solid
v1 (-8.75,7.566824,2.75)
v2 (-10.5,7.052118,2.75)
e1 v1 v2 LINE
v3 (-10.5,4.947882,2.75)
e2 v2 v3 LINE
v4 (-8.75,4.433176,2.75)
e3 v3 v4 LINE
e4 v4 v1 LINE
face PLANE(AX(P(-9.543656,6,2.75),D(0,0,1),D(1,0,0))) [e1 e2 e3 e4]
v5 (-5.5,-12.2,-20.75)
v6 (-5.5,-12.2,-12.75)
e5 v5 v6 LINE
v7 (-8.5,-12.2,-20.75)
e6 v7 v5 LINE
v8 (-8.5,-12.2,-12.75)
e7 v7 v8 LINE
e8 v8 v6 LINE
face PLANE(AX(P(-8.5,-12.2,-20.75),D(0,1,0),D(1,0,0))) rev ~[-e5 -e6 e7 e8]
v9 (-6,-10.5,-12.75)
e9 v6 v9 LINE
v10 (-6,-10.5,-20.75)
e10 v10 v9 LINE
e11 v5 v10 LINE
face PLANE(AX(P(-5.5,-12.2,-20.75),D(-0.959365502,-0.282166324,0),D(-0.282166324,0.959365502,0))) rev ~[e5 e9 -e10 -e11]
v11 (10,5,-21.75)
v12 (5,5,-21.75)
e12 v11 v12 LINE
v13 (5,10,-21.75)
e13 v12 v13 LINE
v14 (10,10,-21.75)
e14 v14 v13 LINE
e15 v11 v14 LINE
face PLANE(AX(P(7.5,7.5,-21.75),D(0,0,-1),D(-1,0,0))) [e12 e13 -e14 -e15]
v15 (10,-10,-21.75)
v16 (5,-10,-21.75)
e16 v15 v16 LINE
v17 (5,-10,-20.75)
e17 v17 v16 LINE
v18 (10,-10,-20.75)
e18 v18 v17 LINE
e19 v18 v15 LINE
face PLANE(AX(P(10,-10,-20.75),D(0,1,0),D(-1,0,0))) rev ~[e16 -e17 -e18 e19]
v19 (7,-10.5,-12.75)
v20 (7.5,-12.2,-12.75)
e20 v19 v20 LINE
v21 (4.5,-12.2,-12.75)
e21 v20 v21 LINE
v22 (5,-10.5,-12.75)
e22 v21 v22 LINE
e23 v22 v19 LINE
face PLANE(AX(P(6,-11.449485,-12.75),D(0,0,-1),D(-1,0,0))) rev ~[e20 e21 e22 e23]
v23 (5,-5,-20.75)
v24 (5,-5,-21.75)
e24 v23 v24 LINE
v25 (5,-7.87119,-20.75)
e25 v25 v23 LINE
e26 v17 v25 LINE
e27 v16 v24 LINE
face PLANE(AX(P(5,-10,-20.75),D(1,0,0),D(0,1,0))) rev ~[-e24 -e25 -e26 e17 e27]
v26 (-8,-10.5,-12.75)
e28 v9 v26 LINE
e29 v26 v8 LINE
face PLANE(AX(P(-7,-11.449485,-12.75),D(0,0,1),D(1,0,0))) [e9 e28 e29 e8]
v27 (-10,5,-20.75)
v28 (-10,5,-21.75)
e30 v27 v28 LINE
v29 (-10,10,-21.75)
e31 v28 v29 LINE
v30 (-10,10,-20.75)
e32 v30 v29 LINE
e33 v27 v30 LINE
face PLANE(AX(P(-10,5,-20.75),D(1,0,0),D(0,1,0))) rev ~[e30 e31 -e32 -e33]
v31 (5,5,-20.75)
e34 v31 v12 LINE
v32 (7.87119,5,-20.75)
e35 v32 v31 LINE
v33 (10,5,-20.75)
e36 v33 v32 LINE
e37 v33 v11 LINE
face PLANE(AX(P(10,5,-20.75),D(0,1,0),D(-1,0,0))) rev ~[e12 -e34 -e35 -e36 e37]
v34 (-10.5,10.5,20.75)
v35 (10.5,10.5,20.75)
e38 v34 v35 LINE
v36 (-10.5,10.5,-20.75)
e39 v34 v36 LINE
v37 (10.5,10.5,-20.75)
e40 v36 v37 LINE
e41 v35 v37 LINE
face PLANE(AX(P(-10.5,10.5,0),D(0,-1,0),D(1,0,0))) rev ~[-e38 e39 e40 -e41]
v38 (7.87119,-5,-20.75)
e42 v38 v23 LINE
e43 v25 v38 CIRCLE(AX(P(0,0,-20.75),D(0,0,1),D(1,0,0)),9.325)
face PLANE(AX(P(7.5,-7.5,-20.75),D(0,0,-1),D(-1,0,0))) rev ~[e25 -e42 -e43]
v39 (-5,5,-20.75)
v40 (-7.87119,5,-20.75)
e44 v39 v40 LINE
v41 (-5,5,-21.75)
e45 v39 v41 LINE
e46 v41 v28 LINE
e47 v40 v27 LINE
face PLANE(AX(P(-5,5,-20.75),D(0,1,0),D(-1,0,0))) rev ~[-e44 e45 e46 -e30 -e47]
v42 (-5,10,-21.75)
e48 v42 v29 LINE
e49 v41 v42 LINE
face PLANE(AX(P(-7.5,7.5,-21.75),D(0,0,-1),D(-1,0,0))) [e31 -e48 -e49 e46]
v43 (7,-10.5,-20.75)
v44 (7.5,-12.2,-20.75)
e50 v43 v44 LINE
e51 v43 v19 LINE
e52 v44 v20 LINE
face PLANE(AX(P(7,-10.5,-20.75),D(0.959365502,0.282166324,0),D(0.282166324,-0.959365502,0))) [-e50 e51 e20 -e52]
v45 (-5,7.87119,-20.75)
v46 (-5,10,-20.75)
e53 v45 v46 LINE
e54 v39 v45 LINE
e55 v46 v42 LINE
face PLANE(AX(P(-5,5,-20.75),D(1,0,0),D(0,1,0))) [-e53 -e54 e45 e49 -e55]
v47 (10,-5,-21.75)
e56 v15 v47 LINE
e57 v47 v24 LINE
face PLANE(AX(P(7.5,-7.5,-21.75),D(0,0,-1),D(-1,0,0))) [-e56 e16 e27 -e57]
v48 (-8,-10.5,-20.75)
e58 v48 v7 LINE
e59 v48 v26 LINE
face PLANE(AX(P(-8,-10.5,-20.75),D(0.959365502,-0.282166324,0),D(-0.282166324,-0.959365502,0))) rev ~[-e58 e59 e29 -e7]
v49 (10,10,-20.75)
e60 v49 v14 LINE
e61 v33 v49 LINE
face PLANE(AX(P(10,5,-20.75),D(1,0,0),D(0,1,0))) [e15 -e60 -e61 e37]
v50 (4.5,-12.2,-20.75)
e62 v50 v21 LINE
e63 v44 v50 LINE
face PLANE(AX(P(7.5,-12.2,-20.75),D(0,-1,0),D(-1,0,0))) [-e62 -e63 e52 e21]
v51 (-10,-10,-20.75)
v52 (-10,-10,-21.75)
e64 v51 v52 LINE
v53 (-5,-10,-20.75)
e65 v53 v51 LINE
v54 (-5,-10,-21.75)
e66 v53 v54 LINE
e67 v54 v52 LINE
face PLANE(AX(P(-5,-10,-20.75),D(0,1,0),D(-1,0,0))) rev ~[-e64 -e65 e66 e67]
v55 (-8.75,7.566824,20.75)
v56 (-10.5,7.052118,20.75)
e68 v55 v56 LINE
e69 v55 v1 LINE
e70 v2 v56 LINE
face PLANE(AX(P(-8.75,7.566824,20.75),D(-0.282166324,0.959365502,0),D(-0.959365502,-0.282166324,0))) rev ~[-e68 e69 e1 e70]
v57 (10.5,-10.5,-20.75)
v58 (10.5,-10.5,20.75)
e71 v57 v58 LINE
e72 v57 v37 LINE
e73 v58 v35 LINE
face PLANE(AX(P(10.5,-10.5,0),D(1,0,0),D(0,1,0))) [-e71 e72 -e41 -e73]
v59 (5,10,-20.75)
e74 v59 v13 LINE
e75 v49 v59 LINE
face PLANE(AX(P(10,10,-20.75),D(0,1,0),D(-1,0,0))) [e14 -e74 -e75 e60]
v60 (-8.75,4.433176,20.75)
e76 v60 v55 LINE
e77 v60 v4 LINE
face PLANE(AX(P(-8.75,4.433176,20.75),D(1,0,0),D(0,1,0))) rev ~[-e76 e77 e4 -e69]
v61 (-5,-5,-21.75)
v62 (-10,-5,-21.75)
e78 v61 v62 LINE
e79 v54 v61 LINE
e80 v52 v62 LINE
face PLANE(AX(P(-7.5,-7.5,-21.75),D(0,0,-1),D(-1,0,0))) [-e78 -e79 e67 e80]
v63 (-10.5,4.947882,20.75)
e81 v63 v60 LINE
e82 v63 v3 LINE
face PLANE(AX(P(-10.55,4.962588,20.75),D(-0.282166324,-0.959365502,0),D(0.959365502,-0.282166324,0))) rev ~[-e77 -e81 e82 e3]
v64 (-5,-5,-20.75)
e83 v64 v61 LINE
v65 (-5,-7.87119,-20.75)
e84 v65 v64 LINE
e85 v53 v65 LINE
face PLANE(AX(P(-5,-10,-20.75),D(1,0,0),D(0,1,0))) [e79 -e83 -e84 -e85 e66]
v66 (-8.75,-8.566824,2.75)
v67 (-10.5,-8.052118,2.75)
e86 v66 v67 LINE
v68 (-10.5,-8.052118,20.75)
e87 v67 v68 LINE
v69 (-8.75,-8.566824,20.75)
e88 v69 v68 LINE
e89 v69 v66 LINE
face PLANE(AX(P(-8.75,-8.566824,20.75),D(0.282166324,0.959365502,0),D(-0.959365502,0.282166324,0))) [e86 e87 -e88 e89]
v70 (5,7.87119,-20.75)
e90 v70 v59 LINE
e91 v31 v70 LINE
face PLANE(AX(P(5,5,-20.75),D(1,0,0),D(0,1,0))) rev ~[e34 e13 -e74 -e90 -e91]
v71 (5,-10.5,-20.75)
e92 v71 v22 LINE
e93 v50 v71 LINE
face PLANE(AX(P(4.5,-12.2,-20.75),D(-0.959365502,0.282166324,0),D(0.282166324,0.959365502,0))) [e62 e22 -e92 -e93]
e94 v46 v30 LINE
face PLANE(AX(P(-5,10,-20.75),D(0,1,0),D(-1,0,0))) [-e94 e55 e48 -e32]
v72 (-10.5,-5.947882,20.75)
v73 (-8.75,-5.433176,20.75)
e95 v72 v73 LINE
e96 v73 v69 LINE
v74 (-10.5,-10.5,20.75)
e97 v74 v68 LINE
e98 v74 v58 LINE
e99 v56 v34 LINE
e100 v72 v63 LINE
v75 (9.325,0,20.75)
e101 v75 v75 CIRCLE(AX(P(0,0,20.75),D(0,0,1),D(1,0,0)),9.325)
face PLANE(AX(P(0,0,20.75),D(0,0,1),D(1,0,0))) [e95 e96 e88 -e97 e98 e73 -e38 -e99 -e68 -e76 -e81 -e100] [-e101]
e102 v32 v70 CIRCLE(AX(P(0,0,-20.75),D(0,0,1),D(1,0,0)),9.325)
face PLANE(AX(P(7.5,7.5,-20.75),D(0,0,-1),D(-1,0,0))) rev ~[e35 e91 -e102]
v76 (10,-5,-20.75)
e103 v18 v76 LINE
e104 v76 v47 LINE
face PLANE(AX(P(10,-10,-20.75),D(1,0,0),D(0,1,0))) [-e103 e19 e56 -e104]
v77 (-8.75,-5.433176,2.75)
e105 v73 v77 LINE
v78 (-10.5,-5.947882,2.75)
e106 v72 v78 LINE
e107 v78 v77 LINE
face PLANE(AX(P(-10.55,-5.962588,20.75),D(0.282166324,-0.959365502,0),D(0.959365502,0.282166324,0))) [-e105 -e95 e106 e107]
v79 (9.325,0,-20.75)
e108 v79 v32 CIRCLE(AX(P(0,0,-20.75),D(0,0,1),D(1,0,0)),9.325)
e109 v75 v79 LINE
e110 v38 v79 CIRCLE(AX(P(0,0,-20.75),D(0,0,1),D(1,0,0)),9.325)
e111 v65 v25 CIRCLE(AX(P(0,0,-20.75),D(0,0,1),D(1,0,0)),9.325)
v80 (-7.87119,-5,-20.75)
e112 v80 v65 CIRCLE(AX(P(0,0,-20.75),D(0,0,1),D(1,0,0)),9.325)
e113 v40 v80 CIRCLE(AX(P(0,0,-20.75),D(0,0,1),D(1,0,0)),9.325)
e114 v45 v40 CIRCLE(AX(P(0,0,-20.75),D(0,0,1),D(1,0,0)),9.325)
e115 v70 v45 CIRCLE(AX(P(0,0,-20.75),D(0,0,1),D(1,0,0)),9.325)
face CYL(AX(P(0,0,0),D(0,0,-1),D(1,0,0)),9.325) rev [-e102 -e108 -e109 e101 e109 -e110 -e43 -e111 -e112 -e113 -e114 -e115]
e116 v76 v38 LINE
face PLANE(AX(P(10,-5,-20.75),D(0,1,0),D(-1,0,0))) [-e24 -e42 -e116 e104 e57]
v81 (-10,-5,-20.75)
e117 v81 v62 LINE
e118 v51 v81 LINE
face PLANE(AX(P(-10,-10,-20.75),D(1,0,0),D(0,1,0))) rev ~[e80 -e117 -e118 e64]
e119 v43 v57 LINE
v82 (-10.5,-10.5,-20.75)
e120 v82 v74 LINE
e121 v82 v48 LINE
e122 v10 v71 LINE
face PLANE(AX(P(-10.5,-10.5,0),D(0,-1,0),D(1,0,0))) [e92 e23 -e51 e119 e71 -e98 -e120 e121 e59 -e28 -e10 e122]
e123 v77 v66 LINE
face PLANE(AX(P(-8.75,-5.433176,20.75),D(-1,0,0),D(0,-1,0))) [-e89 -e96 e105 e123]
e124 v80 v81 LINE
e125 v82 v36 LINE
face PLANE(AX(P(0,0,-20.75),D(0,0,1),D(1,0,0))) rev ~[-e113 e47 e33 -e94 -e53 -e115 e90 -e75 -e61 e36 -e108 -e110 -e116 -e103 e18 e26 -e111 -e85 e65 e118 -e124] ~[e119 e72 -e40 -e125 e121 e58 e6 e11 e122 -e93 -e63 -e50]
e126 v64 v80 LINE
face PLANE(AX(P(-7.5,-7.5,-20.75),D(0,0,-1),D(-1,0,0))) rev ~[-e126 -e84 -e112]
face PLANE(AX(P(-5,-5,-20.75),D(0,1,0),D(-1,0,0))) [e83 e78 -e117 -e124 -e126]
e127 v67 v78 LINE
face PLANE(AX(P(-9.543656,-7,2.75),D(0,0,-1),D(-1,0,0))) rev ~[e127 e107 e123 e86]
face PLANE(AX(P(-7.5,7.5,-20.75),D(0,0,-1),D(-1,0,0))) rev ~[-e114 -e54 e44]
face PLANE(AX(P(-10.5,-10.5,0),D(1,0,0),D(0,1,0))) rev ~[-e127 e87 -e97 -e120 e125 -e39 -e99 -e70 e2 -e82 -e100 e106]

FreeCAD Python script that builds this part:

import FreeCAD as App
import Part
import Sketcher

V = App.Vector
Q = App.Units.Quantity


def add_polygon(sketch, points):
    """Adds a closed chain of lines whose ends are joined by coincident constraints."""
    first, n = sketch.GeometryCount, len(points)
    for a, b in zip(points, points[1:] + points[:1]):
        sketch.addGeometry(Part.LineSegment(App.Vector(*a, 0), App.Vector(*b, 0)), False)
    for i in range(n):
        sketch.addConstraint(Sketcher.Constraint("Coincident", first + i, 2, first + (i + 1) % n, 1))

doc = App.newDocument("Part")
body = doc.addObject("PartDesign::Body", "Body")

sketch1 = doc.addObject("Sketcher::SketchObject", "Sketch")
body.addObject(sketch1)
sketch1.AttachmentSupport = (doc.XY_Plane, [""])
sketch1.MapMode = "FlatFace"
add_polygon(sketch1, [(-10, 10), (-10, -10), (10, -10), (10, 10)])
sketch1.addGeometry(Part.Circle(V(0, 0, 0), V(0, 0, 1), 9), False)
sketch1.addConstraint([
    Sketcher.Constraint("Vertical", 0),
    Sketcher.Constraint("Horizontal", 1),
    Sketcher.Constraint("Vertical", 2),
    Sketcher.Constraint("Horizontal", 3),
    Sketcher.Constraint("Coincident", 4, 3, -1, 1),
    Sketcher.Constraint("Symmetric", 0, 2, 2, 2, -1, 1),
    Sketcher.Constraint("Equal", 3, 0),
    Sketcher.Constraint("Diameter", 4, Q("18.65 mm")),
    Sketcher.Constraint("DistanceX", 1, 1, 1, 2, Q("21 mm")),
])
pad1 = doc.addObject("PartDesign::Pad", "Pad")
body.addObject(pad1)
pad1.Profile = sketch1
pad1.Length = 41.5
pad1.Midplane = True

sketch2 = doc.addObject("Sketcher::SketchObject", "Sketch001")
body.addObject(sketch2)
sketch2.AttachmentSupport = (doc.XY_Plane, [""])
sketch2.MapMode = "FlatFace"
sketch2.AttachmentOffset = App.Placement(V(0, 0, -20.75), App.Rotation())
add_polygon(sketch2, [(10, 10), (10, 5), (5, 5), (5, 10)])
add_polygon(sketch2, [(-5, 10), (-5, 5), (-10, 5), (-10, 10)])
add_polygon(sketch2, [(-5, -5), (-5, -10), (-10, -10), (-10, -5)])
add_polygon(sketch2, [(10, -5), (10, -10), (5, -10), (5, -5)])
sketch2.addConstraint([
    Sketcher.Constraint("Vertical", 0),
    Sketcher.Constraint("Horizontal", 1),
    Sketcher.Constraint("Vertical", 2),
    Sketcher.Constraint("Horizontal", 3),
    Sketcher.Constraint("Vertical", 4),
    Sketcher.Constraint("Horizontal", 5),
    Sketcher.Constraint("Vertical", 6),
    Sketcher.Constraint("Horizontal", 7),
    Sketcher.Constraint("Vertical", 8),
    Sketcher.Constraint("Horizontal", 9),
    Sketcher.Constraint("Vertical", 10),
    Sketcher.Constraint("Horizontal", 11),
    Sketcher.Constraint("Vertical", 12),
    Sketcher.Constraint("Horizontal", 13),
    Sketcher.Constraint("Vertical", 14),
    Sketcher.Constraint("Horizontal", 15),
    Sketcher.Constraint("Symmetric", 2, 2, 8, 2, -1, 1),
    Sketcher.Constraint("Symmetric", 0, 2, 10, 2, -1, 1),
    Sketcher.Constraint("Symmetric", 6, 2, 12, 2, -1, 1),
    Sketcher.Constraint("Symmetric", 4, 2, 14, 2, -1, 1),
    Sketcher.Constraint("Symmetric", 1, 2, 4, 2, -2),
    Sketcher.Constraint("Symmetric", 3, 2, 6, 2, -2),
    Sketcher.Constraint("Equal", 15, 0),
    Sketcher.Constraint("DistanceX", 1, 2, 1, 1, Q("5 mm")),
    Sketcher.Constraint("DistanceX", -1, 1, 0, 2, Q("10 mm")),
    Sketcher.Constraint("DistanceY", -1, 1, 0, 2, Q("5 mm")),
])
pad2 = doc.addObject("PartDesign::Pad", "Pad001")
body.addObject(pad2)
pad2.Profile = sketch2
pad2.Length = 1
pad2.Reversed = True

sketch3 = doc.addObject("Sketcher::SketchObject", "Sketch002")
body.addObject(sketch3)
sketch3.AttachmentSupport = (doc.XY_Plane, [""])
sketch3.MapMode = "FlatFace"
sketch3.AttachmentOffset = App.Placement(V(0, 0, 20.75), App.Rotation())
add_polygon(sketch3, [(-8.8, -5.4), (-10.6, -6), (-10.6, -8), (-8.8, -8.6)])
add_polygon(sketch3, [(-10.6, 7), (-10.6, 5), (-8.8, 4.4), (-8.8, 7.6)])
sketch3.addConstraint([
    Sketcher.Constraint("Vertical", 1),
    Sketcher.Constraint("Vertical", 3),
    Sketcher.Constraint("Vertical", 4),
    Sketcher.Constraint("Vertical", 6),
    Sketcher.Constraint("Parallel", 2, 5),
    Sketcher.Constraint("Parallel", 0, 7),
    Sketcher.Constraint("Vertical", 1, 2, 4, 2),
    Sketcher.Constraint("Vertical", 3, 2, 5, 2),
    Sketcher.Constraint("Equal", 1, 4),
    Sketcher.Constraint("Equal", 0, 2),
    Sketcher.Constraint("DistanceY", 1, 2, 4, 2, Q("13 mm")),
    Sketcher.Constraint("DistanceX", 1, 2, 2, 2, Q("1.8 mm")),
    Sketcher.Constraint("DistanceX", 0, 2, -1, 1, Q("10.55 mm")),
    Sketcher.Constraint("Distance", 0, Q("1.87624 mm")),
    Sketcher.Constraint("DistanceY", 1, 2, 1, 1, Q("2.074824 mm")),
    Sketcher.Constraint("DistanceY", 0, 2, -1, 1, Q("5.962588 mm")),
])
pocket1 = doc.addObject("PartDesign::Pocket", "Pocket")
body.addObject(pocket1)
pocket1.Profile = sketch3
pocket1.Length = 18

sketch4 = doc.addObject("Sketcher::SketchObject", "Sketch003")
body.addObject(sketch4)
sketch4.AttachmentSupport = (doc.XY_Plane, [""])
sketch4.MapMode = "FlatFace"
sketch4.AttachmentOffset = App.Placement(V(0, 0, -20.75), App.Rotation())
add_polygon(sketch4, [(-8, -10.5), (-6, -10.5), (-5.5, -12.2), (-8.5, -12.2)])
add_polygon(sketch4, [(4.5, -12.2), (5, -10.5), (7, -10.5), (7.5, -12.2)])
sketch4.addConstraint([
    Sketcher.Constraint("Horizontal", 0),
    Sketcher.Constraint("Horizontal", 2),
    Sketcher.Constraint("Horizontal", 5),
    Sketcher.Constraint("Horizontal", 7),
    Sketcher.Constraint("Parallel", 3, 4),
    Sketcher.Constraint("Parallel", 1, 6),
    Sketcher.Constraint("Horizontal", 3, 2, 4, 2),
    Sketcher.Constraint("Horizontal", 2, 2, 6, 2),
    Sketcher.Constraint("Equal", 0, 5),
    Sketcher.Constraint("Equal", 1, 3),
    Sketcher.Constraint("DistanceX", 0, 1, 0, 2, Q("2 mm")),
    Sketcher.Constraint("DistanceX", 2, 2, 2, 1, Q("3 mm")),
    Sketcher.Constraint("DistanceX", 0, 2, -1, 1, Q("6 mm")),
    Sketcher.Constraint("DistanceX", -1, 1, 4, 2, Q("5 mm")),
    Sketcher.Constraint("DistanceY", 0, 2, -1, 1, Q("10.5 mm")),
    Sketcher.Constraint("DistanceY", 1, 2, -1, 1, Q("12.2 mm")),
])
pad3 = doc.addObject("PartDesign::Pad", "Pad002")
body.addObject(pad3)
pad3.Profile = sketch4
pad3.Length = 8

doc.recompute()
